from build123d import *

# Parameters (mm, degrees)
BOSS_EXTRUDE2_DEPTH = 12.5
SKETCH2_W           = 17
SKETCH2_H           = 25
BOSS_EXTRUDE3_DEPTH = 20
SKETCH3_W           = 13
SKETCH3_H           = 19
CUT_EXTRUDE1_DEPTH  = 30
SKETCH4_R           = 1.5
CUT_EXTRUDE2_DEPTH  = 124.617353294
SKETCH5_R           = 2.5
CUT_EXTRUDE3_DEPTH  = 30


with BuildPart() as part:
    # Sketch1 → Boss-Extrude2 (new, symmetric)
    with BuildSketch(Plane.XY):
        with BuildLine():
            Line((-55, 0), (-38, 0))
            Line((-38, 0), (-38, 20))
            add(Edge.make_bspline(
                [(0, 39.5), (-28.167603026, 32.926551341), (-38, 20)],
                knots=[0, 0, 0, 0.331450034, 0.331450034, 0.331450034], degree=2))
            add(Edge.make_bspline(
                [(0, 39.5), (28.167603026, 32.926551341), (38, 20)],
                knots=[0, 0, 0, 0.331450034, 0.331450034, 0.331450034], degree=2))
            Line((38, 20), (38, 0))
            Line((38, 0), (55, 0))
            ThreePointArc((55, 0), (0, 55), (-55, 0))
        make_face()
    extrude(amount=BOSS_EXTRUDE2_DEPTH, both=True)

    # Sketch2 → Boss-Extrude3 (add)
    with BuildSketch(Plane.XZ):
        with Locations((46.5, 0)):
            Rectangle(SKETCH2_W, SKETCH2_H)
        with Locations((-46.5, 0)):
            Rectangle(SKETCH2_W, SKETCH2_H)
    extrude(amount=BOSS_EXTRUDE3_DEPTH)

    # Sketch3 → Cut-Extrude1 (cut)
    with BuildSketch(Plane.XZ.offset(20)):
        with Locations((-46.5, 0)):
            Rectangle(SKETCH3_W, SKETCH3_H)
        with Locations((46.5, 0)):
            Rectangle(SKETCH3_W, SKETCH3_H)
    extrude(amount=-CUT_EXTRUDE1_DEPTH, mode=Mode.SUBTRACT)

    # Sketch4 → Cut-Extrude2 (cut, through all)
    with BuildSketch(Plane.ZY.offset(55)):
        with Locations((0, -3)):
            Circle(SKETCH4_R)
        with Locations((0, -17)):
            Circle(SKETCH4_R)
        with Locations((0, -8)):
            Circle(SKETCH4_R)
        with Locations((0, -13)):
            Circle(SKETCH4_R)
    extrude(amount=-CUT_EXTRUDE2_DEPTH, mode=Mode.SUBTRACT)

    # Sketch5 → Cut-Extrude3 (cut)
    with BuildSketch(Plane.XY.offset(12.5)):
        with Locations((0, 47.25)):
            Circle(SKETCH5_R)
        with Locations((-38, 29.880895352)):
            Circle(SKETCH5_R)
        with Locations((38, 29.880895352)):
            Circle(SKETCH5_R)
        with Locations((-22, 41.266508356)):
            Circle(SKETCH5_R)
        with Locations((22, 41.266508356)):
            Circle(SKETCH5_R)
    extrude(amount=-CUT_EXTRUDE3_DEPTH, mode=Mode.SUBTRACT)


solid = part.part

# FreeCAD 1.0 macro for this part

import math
import FreeCAD as App
import Part
import Sketcher
from FreeCAD import Vector


def add_polygon(sketch, points):
    """Adds a closed chain of lines whose ends are joined by coincident constraints."""
    first, n = sketch.GeometryCount, len(points)
    for a, b in zip(points, points[1:] + points[:1]):
        sketch.addGeometry(Part.LineSegment(App.Vector(*a, 0), App.Vector(*b, 0)), False)
    for i in range(n):
        sketch.addConstraint(Sketcher.Constraint("Coincident", first + i, 2, first + (i + 1) % n, 1))

doc = App.newDocument("Part")
body = doc.addObject("PartDesign::Body", "Body")

sketch1 = body.newObject("Sketcher::SketchObject", "Sketch")
sketch1.AttachmentSupport = (doc.getObject("XY_Plane"), [""])
sketch1.MapMode = "FlatFace"
sketch1.addGeometry(Part.LineSegment(Vector(-55, 0, 0), Vector(-38, 0, 0)), False)
sketch1.addGeometry(Part.LineSegment(Vector(-38, 0, 0), Vector(-38, 20, 0)), False)
sketch1.addGeometry(Part.BSplineCurve([Vector(0, 39.5, 0), Vector(-28.167603, 32.926551, 0), Vector(-38, 20, 0)], [3, 3], [0, 0.331450034], False, 2, [1, 1, 1], False), False)
sketch1.addGeometry(Part.BSplineCurve([Vector(0, 39.5, 0), Vector(28.167603, 32.926551, 0), Vector(38, 20, 0)], [3, 3], [0, 0.331450034], False, 2, [1, 1, 1], False), False)
sketch1.addGeometry(Part.LineSegment(Vector(38, 20, 0), Vector(38, 0, 0)), False)
sketch1.addGeometry(Part.LineSegment(Vector(38, 0, 0), Vector(55, 0, 0)), False)
sketch1.addGeometry(Part.ArcOfCircle(Part.Circle(Vector(0, 0, 0), Vector(0, 0, 1), 55), math.radians(0), math.radians(180)), False)
sketch1.addConstraint(Sketcher.Constraint("Block", 2))
sketch1.addConstraint(Sketcher.Constraint("Block", 3))
sketch1.addConstraint(Sketcher.Constraint("Coincident", 0, 2, 1, 1))
sketch1.addConstraint(Sketcher.Constraint("Coincident", 1, 2, 2, 2))
sketch1.addConstraint(Sketcher.Constraint("Coincident", 3, 2, 4, 1))
sketch1.addConstraint(Sketcher.Constraint("Coincident", 4, 2, 5, 1))
sketch1.addConstraint(Sketcher.Constraint("Coincident", 5, 2, 6, 1))
sketch1.addConstraint(Sketcher.Constraint("Coincident", 6, 2, 0, 1))
sketch1.addConstraint(Sketcher.Constraint("Horizontal", 0))
sketch1.addConstraint(Sketcher.Constraint("Vertical", 1))
sketch1.addConstraint(Sketcher.Constraint("Vertical", 4))
sketch1.addConstraint(Sketcher.Constraint("Horizontal", 5))
sketch1.addConstraint(Sketcher.Constraint("Coincident", 6, 3, -1, 1))
sketch1.addConstraint(Sketcher.Constraint("PointOnObject", 0, 2, -1))
sketch1.addConstraint(Sketcher.Constraint("PointOnObject", 4, 2, -1))
sketch1.addConstraint(Sketcher.Constraint("Radius", 6, 55.0))
pad1 = body.newObject("PartDesign::Pad", "Pad")
pad1.Profile = sketch1
pad1.Length = 25
pad1.Midplane = True

sketch2 = body.newObject("Sketcher::SketchObject", "Sketch001")
sketch2.AttachmentSupport = (doc.getObject("XZ_Plane"), [""])
sketch2.MapMode = "FlatFace"
add_polygon(sketch2, [(38, 12.5), (38, -12.5), (55, -12.5), (55, 12.5)])
add_polygon(sketch2, [(-55, 12.5), (-55, -12.5), (-38, -12.5), (-38, 12.5)])
sketch2.addConstraint(Sketcher.Constraint("Vertical", 0))
sketch2.addConstraint(Sketcher.Constraint("Horizontal", 1))
sketch2.addConstraint(Sketcher.Constraint("Vertical", 2))
sketch2.addConstraint(Sketcher.Constraint("Horizontal", 3))
sketch2.addConstraint(Sketcher.Constraint("Vertical", 4))
sketch2.addConstraint(Sketcher.Constraint("Horizontal", 5))
sketch2.addConstraint(Sketcher.Constraint("Vertical", 6))
sketch2.addConstraint(Sketcher.Constraint("Horizontal", 7))
sketch2.addConstraint(Sketcher.Constraint("Symmetric", 2, 2, 4, 2, -1, 1))
sketch2.addConstraint(Sketcher.Constraint("Symmetric", 0, 2, 6, 2, -1, 1))
sketch2.addConstraint(Sketcher.Constraint("Horizontal", 1, 2, 4, 2))
sketch2.addConstraint(Sketcher.Constraint("DistanceX", 1, 1, 1, 2, 17.0))
sketch2.addConstraint(Sketcher.Constraint("DistanceY", 0, 2, 0, 1, 25.0))
sketch2.addConstraint(Sketcher.Constraint("DistanceX", -1, 1, 0, 2, 38.0))
pad2 = body.newObject("PartDesign::Pad", "Pad001")
pad2.Profile = sketch2
pad2.Length = 20

sketch3 = body.newObject("Sketcher::SketchObject", "Sketch002")
sketch3.AttachmentSupport = (doc.getObject("XZ_Plane"), [""])
sketch3.MapMode = "FlatFace"
sketch3.AttachmentOffset = App.Placement(Vector(0, 0, 20), App.Rotation())
add_polygon(sketch3, [(-53, 9.5), (-53, -9.5), (-40, -9.5), (-40, 9.5)])
add_polygon(sketch3, [(40, 9.5), (40, -9.5), (53, -9.5), (53, 9.5)])
sketch3.addConstraint(Sketcher.Constraint("Vertical", 0))
sketch3.addConstraint(Sketcher.Constraint("Horizontal", 1))
sketch3.addConstraint(Sketcher.Constraint("Vertical", 2))
sketch3.addConstraint(Sketcher.Constraint("Horizontal", 3))
sketch3.addConstraint(Sketcher.Constraint("Vertical", 4))
sketch3.addConstraint(Sketcher.Constraint("Horizontal", 5))
sketch3.addConstraint(Sketcher.Constraint("Vertical", 6))
sketch3.addConstraint(Sketcher.Constraint("Horizontal", 7))
sketch3.addConstraint(Sketcher.Constraint("Symmetric", 2, 2, 4, 2, -1, 1))
sketch3.addConstraint(Sketcher.Constraint("Symmetric", 0, 2, 6, 2, -1, 1))
sketch3.addConstraint(Sketcher.Constraint("Horizontal", 1, 2, 4, 2))
sketch3.addConstraint(Sketcher.Constraint("DistanceX", 1, 1, 1, 2, 13.0))
sketch3.addConstraint(Sketcher.Constraint("DistanceY", 0, 2, 0, 1, 19.0))
sketch3.addConstraint(Sketcher.Constraint("DistanceX", 0, 2, -1, 1, 53.0))
pocket1 = body.newObject("PartDesign::Pocket", "Pocket")
pocket1.Profile = sketch3
pocket1.Length = 30

sketch4 = body.newObject("Sketcher::SketchObject", "Sketch003")
sketch4.AttachmentSupport = (doc.getObject("YZ_Plane"), [""])
sketch4.MapMode = "FlatFace"
sketch4.AttachmentOffset = App.Placement(Vector(0, 0, -55), App.Rotation())
sketch4.addGeometry(Part.Circle(Vector(-3, 0, 0), Vector(0, 0, 1), 1.5), False)
sketch4.addGeometry(Part.Circle(Vector(-17, 0, 0), Vector(0, 0, 1), 1.5), False)
sketch4.addGeometry(Part.Circle(Vector(-8, 0, 0), Vector(0, 0, 1), 1.5), False)
sketch4.addGeometry(Part.Circle(Vector(-13, 0, 0), Vector(0, 0, 1), 1.5), False)
sketch4.addConstraint(Sketcher.Constraint("Equal", 0, 1))
sketch4.addConstraint(Sketcher.Constraint("Equal", 1, 2))
sketch4.addConstraint(Sketcher.Constraint("Equal", 2, 3))
sketch4.addConstraint(Sketcher.Constraint("PointOnObject", 0, 3, -1))
sketch4.addConstraint(Sketcher.Constraint("PointOnObject", 1, 3, -1))
sketch4.addConstraint(Sketcher.Constraint("PointOnObject", 2, 3, -1))
sketch4.addConstraint(Sketcher.Constraint("PointOnObject", 3, 3, -1))
sketch4.addConstraint(Sketcher.Constraint("Diameter", 0, 3.0))
sketch4.addConstraint(Sketcher.Constraint("DistanceX", 0, 3, -1, 1, 3.0))
sketch4.addConstraint(Sketcher.Constraint("DistanceX", 1, 3, -1, 1, 17.0))
sketch4.addConstraint(Sketcher.Constraint("DistanceX", 2, 3, -1, 1, 8.0))
sketch4.addConstraint(Sketcher.Constraint("DistanceX", 3, 3, -1, 1, 13.0))
pocket2 = body.newObject("PartDesign::Pocket", "Pocket001")
pocket2.Profile = sketch4
pocket2.Type = "ThroughAll"
pocket2.Reversed = True

sketch5 = body.newObject("Sketcher::SketchObject", "Sketch004")
sketch5.AttachmentSupport = (doc.getObject("XY_Plane"), [""])
sketch5.MapMode = "FlatFace"
sketch5.AttachmentOffset = App.Placement(Vector(0, 0, 12.5), App.Rotation())
sketch5.addGeometry(Part.Circle(Vector(0, 47.25, 0), Vector(0, 0, 1), 2.5), False)
sketch5.addGeometry(Part.Circle(Vector(-38, 29.880895, 0), Vector(0, 0, 1), 2.5), False)
sketch5.addGeometry(Part.Circle(Vector(38, 29.880895, 0), Vector(0, 0, 1), 2.5), False)
sketch5.addGeometry(Part.Circle(Vector(-22, 41.266508, 0), Vector(0, 0, 1), 2.5), False)
sketch5.addGeometry(Part.Circle(Vector(22, 41.266508, 0), Vector(0, 0, 1), 2.5), False)
sketch5.addConstraint(Sketcher.Constraint("Equal", 0, 1))
sketch5.addConstraint(Sketcher.Constraint("Equal", 1, 2))
sketch5.addConstraint(Sketcher.Constraint("Equal", 2, 3))
sketch5.addConstraint(Sketcher.Constraint("Equal", 3, 4))
sketch5.addConstraint(Sketcher.Constraint("Symmetric", 1, 3, 2, 3, -2))
sketch5.addConstraint(Sketcher.Constraint("Symmetric", 3, 3, 4, 3, -2))
sketch5.addConstraint(Sketcher.Constraint("PointOnObject", 0, 3, -2))
sketch5.addConstraint(Sketcher.Constraint("Diameter", 0, 5.0))
sketch5.addConstraint(Sketcher.Constraint("DistanceX", 1, 3, -1, 1, 38.0))
sketch5.addConstraint(Sketcher.Constraint("DistanceX", 3, 3, -1, 1, 22.0))
sketch5.addConstraint(Sketcher.Constraint("DistanceY", -1, 1, 0, 3, 47.25))
sketch5.addConstraint(Sketcher.Constraint("DistanceY", -1, 1, 3, 3, 41.266508))
sketch5.addConstraint(Sketcher.Constraint("DistanceY", -1, 1, 1, 3, 29.880895))
pocket3 = body.newObject("PartDesign::Pocket", "Pocket002")
pocket3.Profile = sketch5
pocket3.Length = 30

doc.recompute()
